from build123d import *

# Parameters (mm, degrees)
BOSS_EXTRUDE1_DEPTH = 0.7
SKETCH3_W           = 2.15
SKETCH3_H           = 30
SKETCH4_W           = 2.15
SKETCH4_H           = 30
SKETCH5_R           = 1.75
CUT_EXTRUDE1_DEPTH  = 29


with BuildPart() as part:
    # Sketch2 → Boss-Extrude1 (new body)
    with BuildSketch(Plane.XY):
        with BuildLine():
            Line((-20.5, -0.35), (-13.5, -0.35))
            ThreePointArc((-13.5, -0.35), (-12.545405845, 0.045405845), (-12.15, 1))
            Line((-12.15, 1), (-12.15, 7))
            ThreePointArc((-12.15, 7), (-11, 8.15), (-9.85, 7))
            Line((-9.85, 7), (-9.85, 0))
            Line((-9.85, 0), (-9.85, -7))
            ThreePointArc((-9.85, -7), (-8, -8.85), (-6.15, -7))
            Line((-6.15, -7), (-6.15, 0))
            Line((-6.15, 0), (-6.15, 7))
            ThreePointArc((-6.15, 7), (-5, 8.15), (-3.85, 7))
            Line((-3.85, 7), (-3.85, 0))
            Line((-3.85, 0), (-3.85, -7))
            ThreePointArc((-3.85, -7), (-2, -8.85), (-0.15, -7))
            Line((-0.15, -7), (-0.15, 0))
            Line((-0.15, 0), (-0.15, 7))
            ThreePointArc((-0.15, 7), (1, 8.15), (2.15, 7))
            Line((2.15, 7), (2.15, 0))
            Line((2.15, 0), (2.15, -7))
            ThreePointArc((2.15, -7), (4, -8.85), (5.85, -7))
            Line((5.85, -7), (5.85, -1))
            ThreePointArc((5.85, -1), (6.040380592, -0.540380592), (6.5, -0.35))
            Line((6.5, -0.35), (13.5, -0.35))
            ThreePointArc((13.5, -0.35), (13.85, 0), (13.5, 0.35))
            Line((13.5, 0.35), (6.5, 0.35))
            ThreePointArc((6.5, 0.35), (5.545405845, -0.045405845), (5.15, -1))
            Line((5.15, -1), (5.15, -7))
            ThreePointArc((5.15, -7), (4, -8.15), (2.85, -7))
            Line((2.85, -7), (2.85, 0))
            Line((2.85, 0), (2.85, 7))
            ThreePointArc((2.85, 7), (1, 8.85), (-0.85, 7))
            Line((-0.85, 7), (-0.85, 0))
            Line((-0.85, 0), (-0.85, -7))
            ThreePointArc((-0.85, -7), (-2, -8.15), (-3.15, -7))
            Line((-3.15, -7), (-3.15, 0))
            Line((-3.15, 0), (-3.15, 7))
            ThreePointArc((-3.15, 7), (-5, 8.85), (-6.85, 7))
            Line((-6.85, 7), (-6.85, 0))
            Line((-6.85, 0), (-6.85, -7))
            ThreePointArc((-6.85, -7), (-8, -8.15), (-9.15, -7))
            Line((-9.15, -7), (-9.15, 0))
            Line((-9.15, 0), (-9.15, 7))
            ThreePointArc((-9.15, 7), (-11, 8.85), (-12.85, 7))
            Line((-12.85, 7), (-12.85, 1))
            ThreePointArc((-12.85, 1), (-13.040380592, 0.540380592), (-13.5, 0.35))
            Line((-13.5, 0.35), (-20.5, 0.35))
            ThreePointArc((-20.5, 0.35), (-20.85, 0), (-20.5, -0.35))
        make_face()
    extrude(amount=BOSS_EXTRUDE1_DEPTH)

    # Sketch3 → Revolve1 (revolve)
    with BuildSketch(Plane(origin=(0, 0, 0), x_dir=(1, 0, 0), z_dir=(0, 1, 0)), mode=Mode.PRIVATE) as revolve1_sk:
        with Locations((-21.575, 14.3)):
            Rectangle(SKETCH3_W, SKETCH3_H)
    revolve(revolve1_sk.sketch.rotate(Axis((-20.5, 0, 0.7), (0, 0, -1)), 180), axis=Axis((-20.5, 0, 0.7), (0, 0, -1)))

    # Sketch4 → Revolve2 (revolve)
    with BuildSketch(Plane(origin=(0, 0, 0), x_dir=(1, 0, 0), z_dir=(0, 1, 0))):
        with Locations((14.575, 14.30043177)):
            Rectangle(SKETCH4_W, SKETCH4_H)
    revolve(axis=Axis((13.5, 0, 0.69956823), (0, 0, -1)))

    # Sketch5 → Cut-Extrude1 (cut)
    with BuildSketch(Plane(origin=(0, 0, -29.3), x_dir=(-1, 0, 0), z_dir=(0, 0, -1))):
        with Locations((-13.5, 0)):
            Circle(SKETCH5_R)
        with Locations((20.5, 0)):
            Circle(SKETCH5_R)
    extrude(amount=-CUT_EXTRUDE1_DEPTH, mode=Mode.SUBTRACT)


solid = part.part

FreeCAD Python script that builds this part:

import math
import FreeCAD as App
import Part
import Sketcher
from FreeCAD import Vector
Q = App.Units.Quantity

doc = App.newDocument("Part")
body = doc.addObject("PartDesign::Body", "Body")

sketch1 = body.newObject("Sketcher::SketchObject", "Sketch")
sketch1.AttachmentSupport = (doc.getObject("XY_Plane"), [""])
sketch1.MapMode = "FlatFace"
sketch1.addGeometry(Part.LineSegment(Vector(-20.5, -0.35, 0), Vector(-13.5, -0.35, 0)), False)
sketch1.addGeometry(Part.ArcOfCircle(Part.Circle(Vector(-13.5, 1, 0), Vector(0, 0, 1), 1.35), math.radians(-90), math.radians(0)), False)
sketch1.addGeometry(Part.LineSegment(Vector(-12.15, 1, 0), Vector(-12.15, 7, 0)), False)
sketch1.addGeometry(Part.ArcOfCircle(Part.Circle(Vector(-11, 7, 0), Vector(0, 0, 1), 1.15), math.radians(0), math.radians(180)), False)
sketch1.addGeometry(Part.LineSegment(Vector(-9.85, 7, 0), Vector(-9.85, -7, 0)), False)
sketch1.addGeometry(Part.ArcOfCircle(Part.Circle(Vector(-8, -7, 0), Vector(0, 0, 1), 1.85), math.radians(180), math.radians(360)), False)
sketch1.addGeometry(Part.LineSegment(Vector(-6.15, -7, 0), Vector(-6.15, 7, 0)), False)
sketch1.addGeometry(Part.ArcOfCircle(Part.Circle(Vector(-5, 7, 0), Vector(0, 0, 1), 1.15), math.radians(0), math.radians(180)), False)
sketch1.addGeometry(Part.LineSegment(Vector(-3.85, 7, 0), Vector(-3.85, -7, 0)), False)
sketch1.addGeometry(Part.ArcOfCircle(Part.Circle(Vector(-2, -7, 0), Vector(0, 0, 1), 1.85), math.radians(180), math.radians(360)), False)
sketch1.addGeometry(Part.LineSegment(Vector(-0.15, -7, 0), Vector(-0.15, 7, 0)), False)
sketch1.addGeometry(Part.ArcOfCircle(Part.Circle(Vector(1, 7, 0), Vector(0, 0, 1), 1.15), math.radians(0), math.radians(180)), False)
sketch1.addGeometry(Part.LineSegment(Vector(2.15, 7, 0), Vector(2.15, -7, 0)), False)
sketch1.addGeometry(Part.ArcOfCircle(Part.Circle(Vector(4, -7, 0), Vector(0, 0, 1), 1.85), math.radians(180), math.radians(360)), False)
sketch1.addGeometry(Part.LineSegment(Vector(5.85, -7, 0), Vector(5.85, -1, 0)), False)
sketch1.addGeometry(Part.ArcOfCircle(Part.Circle(Vector(6.5, -1, 0), Vector(0, 0, 1), 0.65), math.radians(90), math.radians(180)), False)
sketch1.addGeometry(Part.LineSegment(Vector(6.5, -0.35, 0), Vector(13.5, -0.35, 0)), False)
sketch1.addGeometry(Part.ArcOfCircle(Part.Circle(Vector(13.5, 0, 0), Vector(0, 0, 1), 0.35), math.radians(-90), math.radians(90)), False)
sketch1.addGeometry(Part.LineSegment(Vector(13.5, 0.35, 0), Vector(6.5, 0.35, 0)), False)
sketch1.addGeometry(Part.ArcOfCircle(Part.Circle(Vector(6.5, -1, 0), Vector(0, 0, 1), 1.35), math.radians(90), math.radians(180)), False)
sketch1.addGeometry(Part.LineSegment(Vector(5.15, -1, 0), Vector(5.15, -7, 0)), False)
sketch1.addGeometry(Part.ArcOfCircle(Part.Circle(Vector(4, -7, 0), Vector(0, 0, 1), 1.15), math.radians(180), math.radians(360)), False)
sketch1.addGeometry(Part.LineSegment(Vector(2.85, -7, 0), Vector(2.85, 7, 0)), False)
sketch1.addGeometry(Part.ArcOfCircle(Part.Circle(Vector(1, 7, 0), Vector(0, 0, 1), 1.85), math.radians(0), math.radians(180)), False)
sketch1.addGeometry(Part.LineSegment(Vector(-0.85, 7, 0), Vector(-0.85, -7, 0)), False)
sketch1.addGeometry(Part.ArcOfCircle(Part.Circle(Vector(-2, -7, 0), Vector(0, 0, 1), 1.15), math.radians(180), math.radians(360)), False)
sketch1.addGeometry(Part.LineSegment(Vector(-3.15, -7, 0), Vector(-3.15, 7, 0)), False)
sketch1.addGeometry(Part.ArcOfCircle(Part.Circle(Vector(-5, 7, 0), Vector(0, 0, 1), 1.85), math.radians(0), math.radians(180)), False)
sketch1.addGeometry(Part.LineSegment(Vector(-6.85, 7, 0), Vector(-6.85, -7, 0)), False)
sketch1.addGeometry(Part.ArcOfCircle(Part.Circle(Vector(-8, -7, 0), Vector(0, 0, 1), 1.15), math.radians(180), math.radians(360)), False)
sketch1.addGeometry(Part.LineSegment(Vector(-9.15, -7, 0), Vector(-9.15, 7, 0)), False)
sketch1.addGeometry(Part.ArcOfCircle(Part.Circle(Vector(-11, 7, 0), Vector(0, 0, 1), 1.85), math.radians(0), math.radians(180)), False)
sketch1.addGeometry(Part.LineSegment(Vector(-12.85, 7, 0), Vector(-12.85, 1, 0)), False)
sketch1.addGeometry(Part.ArcOfCircle(Part.Circle(Vector(-13.5, 1, 0), Vector(0, 0, 1), 0.65), math.radians(-90), math.radians(0)), False)
sketch1.addGeometry(Part.LineSegment(Vector(-13.5, 0.35, 0), Vector(-20.5, 0.35, 0)), False)
sketch1.addGeometry(Part.ArcOfCircle(Part.Circle(Vector(-20.5, 0, 0), Vector(0, 0, 1), 0.35), math.radians(90), math.radians(270)), False)
sketch1.addConstraint(Sketcher.Constraint("Tangent", 0, 2, 1, 1))
sketch1.addConstraint(Sketcher.Constraint("Tangent", 1, 2, 2, 1))
sketch1.addConstraint(Sketcher.Constraint("Tangent", 2, 2, 3, 2))
sketch1.addConstraint(Sketcher.Constraint("Tangent", 3, 1, 4, 1))
sketch1.addConstraint(Sketcher.Constraint("Tangent", 4, 2, 5, 1))
sketch1.addConstraint(Sketcher.Constraint("Tangent", 5, 2, 6, 1))
sketch1.addConstraint(Sketcher.Constraint("Tangent", 6, 2, 7, 2))
sketch1.addConstraint(Sketcher.Constraint("Tangent", 7, 1, 8, 1))
sketch1.addConstraint(Sketcher.Constraint("Tangent", 8, 2, 9, 1))
sketch1.addConstraint(Sketcher.Constraint("Tangent", 9, 2, 10, 1))
sketch1.addConstraint(Sketcher.Constraint("Tangent", 10, 2, 11, 2))
sketch1.addConstraint(Sketcher.Constraint("Tangent", 11, 1, 12, 1))
sketch1.addConstraint(Sketcher.Constraint("Tangent", 12, 2, 13, 1))
sketch1.addConstraint(Sketcher.Constraint("Tangent", 13, 2, 14, 1))
sketch1.addConstraint(Sketcher.Constraint("Tangent", 14, 2, 15, 2))
sketch1.addConstraint(Sketcher.Constraint("Tangent", 15, 1, 16, 1))
sketch1.addConstraint(Sketcher.Constraint("Tangent", 16, 2, 17, 1))
sketch1.addConstraint(Sketcher.Constraint("Tangent", 17, 2, 18, 1))
sketch1.addConstraint(Sketcher.Constraint("Tangent", 18, 2, 19, 1))
sketch1.addConstraint(Sketcher.Constraint("Tangent", 19, 2, 20, 1))
sketch1.addConstraint(Sketcher.Constraint("Tangent", 20, 2, 21, 2))
sketch1.addConstraint(Sketcher.Constraint("Tangent", 21, 1, 22, 1))
sketch1.addConstraint(Sketcher.Constraint("Tangent", 22, 2, 23, 1))
sketch1.addConstraint(Sketcher.Constraint("Tangent", 23, 2, 24, 1))
sketch1.addConstraint(Sketcher.Constraint("Tangent", 24, 2, 25, 2))
sketch1.addConstraint(Sketcher.Constraint("Tangent", 25, 1, 26, 1))
sketch1.addConstraint(Sketcher.Constraint("Tangent", 26, 2, 27, 1))
sketch1.addConstraint(Sketcher.Constraint("Tangent", 27, 2, 28, 1))
sketch1.addConstraint(Sketcher.Constraint("Tangent", 28, 2, 29, 2))
sketch1.addConstraint(Sketcher.Constraint("Tangent", 29, 1, 30, 1))
sketch1.addConstraint(Sketcher.Constraint("Tangent", 30, 2, 31, 1))
sketch1.addConstraint(Sketcher.Constraint("Tangent", 31, 2, 32, 1))
sketch1.addConstraint(Sketcher.Constraint("Tangent", 32, 2, 33, 2))
sketch1.addConstraint(Sketcher.Constraint("Tangent", 33, 1, 34, 1))
sketch1.addConstraint(Sketcher.Constraint("Tangent", 34, 2, 35, 1))
sketch1.addConstraint(Sketcher.Constraint("Tangent", 35, 2, 0, 1))
sketch1.addConstraint(Sketcher.Constraint("Horizontal", 0))
sketch1.addConstraint(Sketcher.Constraint("Vertical", 2))
sketch1.addConstraint(Sketcher.Constraint("Vertical", 4))
sketch1.addConstraint(Sketcher.Constraint("Vertical", 6))
sketch1.addConstraint(Sketcher.Constraint("Vertical", 8))
sketch1.addConstraint(Sketcher.Constraint("Vertical", 10))
sketch1.addConstraint(Sketcher.Constraint("Vertical", 12))
sketch1.addConstraint(Sketcher.Constraint("Vertical", 14))
sketch1.addConstraint(Sketcher.Constraint("Horizontal", 16))
sketch1.addConstraint(Sketcher.Constraint("Horizontal", 18))
sketch1.addConstraint(Sketcher.Constraint("Vertical", 20))
sketch1.addConstraint(Sketcher.Constraint("Vertical", 22))
sketch1.addConstraint(Sketcher.Constraint("Vertical", 24))
sketch1.addConstraint(Sketcher.Constraint("Vertical", 26))
sketch1.addConstraint(Sketcher.Constraint("Vertical", 28))
sketch1.addConstraint(Sketcher.Constraint("Vertical", 30))
sketch1.addConstraint(Sketcher.Constraint("Vertical", 32))
sketch1.addConstraint(Sketcher.Constraint("Horizontal", 34))
sketch1.addConstraint(Sketcher.Constraint("Coincident", 19, 3, 15, 3))
sketch1.addConstraint(Sketcher.Constraint("Coincident", 21, 3, 13, 3))
sketch1.addConstraint(Sketcher.Constraint("Coincident", 23, 3, 11, 3))
sketch1.addConstraint(Sketcher.Constraint("Coincident", 25, 3, 9, 3))
sketch1.addConstraint(Sketcher.Constraint("Coincident", 27, 3, 7, 3))
sketch1.addConstraint(Sketcher.Constraint("Coincident", 29, 3, 5, 3))
sketch1.addConstraint(Sketcher.Constraint("Coincident", 31, 3, 3, 3))
sketch1.addConstraint(Sketcher.Constraint("Coincident", 33, 3, 1, 3))
sketch1.addConstraint(Sketcher.Constraint("Equal", 3, 7))
sketch1.addConstraint(Sketcher.Constraint("Equal", 5, 9))
sketch1.addConstraint(Sketcher.Constraint("Equal", 7, 11))
sketch1.addConstraint(Sketcher.Constraint("Equal", 9, 13))
sketch1.addConstraint(Sketcher.Constraint("Equal", 1, 19))
sketch1.addConstraint(Sketcher.Constraint("Equal", 11, 21))
sketch1.addConstraint(Sketcher.Constraint("Symmetric", 0, 2, 17, 2, -1, 1))
sketch1.addConstraint(Sketcher.Constraint("PointOnObject", 17, 3, -1))
sketch1.addConstraint(Sketcher.Constraint("Horizontal", 3, 3, 7, 3))
sketch1.addConstraint(Sketcher.Constraint("Horizontal", 5, 3, 9, 3))
sketch1.addConstraint(Sketcher.Constraint("Horizontal", 7, 3, 11, 3))
sketch1.addConstraint(Sketcher.Constraint("Horizontal", 9, 3, 13, 3))
sketch1.addConstraint(Sketcher.Constraint("Equal", 0, 16))
sketch1.addConstraint(Sketcher.Constraint("Equal", 2, 14))
sketch1.addConstraint(Sketcher.Constraint("DistanceX", 0, 1, 0, 2, Q("7 mm")))
sketch1.addConstraint(Sketcher.Constraint("DistanceY", 2, 1, 2, 2, Q("6 mm")))
sketch1.addConstraint(Sketcher.Constraint("DistanceY", 4, 2, 4, 1, Q("14 mm")))
sketch1.addConstraint(Sketcher.Constraint("Radius", 1, Q("1.35 mm")))
sketch1.addConstraint(Sketcher.Constraint("Radius", 3, Q("1.15 mm")))
pad1 = body.newObject("PartDesign::Pad", "Pad")
pad1.Profile = sketch1
pad1.Length = 0.7

sketch2 = body.newObject("Sketcher::SketchObject", "Sketch001")
sketch2.AttachmentSupport = (doc.getObject("XZ_Plane"), [""])
sketch2.MapMode = "FlatFace"
sketch2.addGeometry(Part.LineSegment(Vector(-22.6, -29.3, 0), Vector(-22.6, 0.7, 0)), False)
sketch2.addGeometry(Part.LineSegment(Vector(-22.6, 0.7, 0), Vector(-20.5, 0.7, 0)), False)
sketch2.addGeometry(Part.LineSegment(Vector(-20.5, 0.7, 0), Vector(-20.5, -29.3, 0)), False)
sketch2.addGeometry(Part.LineSegment(Vector(-20.5, -29.3, 0), Vector(-22.6, -29.3, 0)), False)
sketch2.addGeometry(Part.LineSegment(Vector(-20.5, 0.7, 0), Vector(-20.5, -29.3, 0)), True)
sketch2.addConstraint(Sketcher.Constraint("Coincident", 0, 2, 1, 1))
sketch2.addConstraint(Sketcher.Constraint("Coincident", 1, 2, 2, 1))
sketch2.addConstraint(Sketcher.Constraint("Coincident", 2, 2, 3, 1))
sketch2.addConstraint(Sketcher.Constraint("Coincident", 3, 2, 0, 1))
sketch2.addConstraint(Sketcher.Constraint("Vertical", 0))
sketch2.addConstraint(Sketcher.Constraint("Horizontal", 1))
sketch2.addConstraint(Sketcher.Constraint("Vertical", 2))
sketch2.addConstraint(Sketcher.Constraint("Horizontal", 3))
sketch2.addConstraint(Sketcher.Constraint("Vertical", 4))
sketch2.addConstraint(Sketcher.Constraint("Coincident", 4, 1, 1, 2))
sketch2.addConstraint(Sketcher.Constraint("Horizontal", 3, 2, 4, 2))
sketch2.addConstraint(Sketcher.Constraint("DistanceY", 0, 1, 0, 2, Q("30 mm")))
sketch2.addConstraint(Sketcher.Constraint("DistanceX", 1, 1, 1, 2, Q("2.15 mm")))
sketch2.addConstraint(Sketcher.Constraint("DistanceY", -1, 1, 0, 2, Q("0.7 mm")))
sketch2.addConstraint(Sketcher.Constraint("DistanceX", 1, 2, -1, 1, Q("20.5 mm")))
revolution = body.newObject("PartDesign::Revolution", "Revolution")
revolution.Profile = sketch2
revolution.ReferenceAxis = (sketch2, ["Axis0"])
revolution.Angle = 360

sketch3 = body.newObject("Sketcher::SketchObject", "Sketch002")
sketch3.AttachmentSupport = (doc.getObject("XZ_Plane"), [""])
sketch3.MapMode = "FlatFace"
sketch3.addGeometry(Part.LineSegment(Vector(13.5, -29.3, 0), Vector(13.5, 0.7, 0)), False)
sketch3.addGeometry(Part.LineSegment(Vector(13.5, 0.7, 0), Vector(15.7, 0.7, 0)), False)
sketch3.addGeometry(Part.LineSegment(Vector(15.7, 0.7, 0), Vector(15.7, -29.3, 0)), False)
sketch3.addGeometry(Part.LineSegment(Vector(15.7, -29.3, 0), Vector(13.5, -29.3, 0)), False)
sketch3.addGeometry(Part.LineSegment(Vector(13.5, 0.7, 0), Vector(13.5, -29.3, 0)), True)
sketch3.addConstraint(Sketcher.Constraint("Coincident", 0, 2, 1, 1))
sketch3.addConstraint(Sketcher.Constraint("Coincident", 1, 2, 2, 1))
sketch3.addConstraint(Sketcher.Constraint("Coincident", 2, 2, 3, 1))
sketch3.addConstraint(Sketcher.Constraint("Coincident", 3, 2, 0, 1))
sketch3.addConstraint(Sketcher.Constraint("Vertical", 0))
sketch3.addConstraint(Sketcher.Constraint("Horizontal", 1))
sketch3.addConstraint(Sketcher.Constraint("Vertical", 2))
sketch3.addConstraint(Sketcher.Constraint("Horizontal", 3))
sketch3.addConstraint(Sketcher.Constraint("Vertical", 4))
sketch3.addConstraint(Sketcher.Constraint("Coincident", 4, 1, 0, 2))
sketch3.addConstraint(Sketcher.Constraint("Horizontal", 2, 2, 4, 2))
sketch3.addConstraint(Sketcher.Constraint("DistanceY", 0, 1, 0, 2, Q("30 mm")))
sketch3.addConstraint(Sketcher.Constraint("DistanceX", 1, 1, 1, 2, Q("2.15 mm")))
sketch3.addConstraint(Sketcher.Constraint("DistanceX", -1, 1, 0, 2, Q("13.5 mm")))
sketch3.addConstraint(Sketcher.Constraint("DistanceY", -1, 1, 0, 2, Q("0.699568 mm")))
revolution2 = body.newObject("PartDesign::Revolution", "Revolution001")
revolution2.Profile = sketch3
revolution2.ReferenceAxis = (sketch3, ["Axis0"])
revolution2.Angle = 360

sketch4 = body.newObject("Sketcher::SketchObject", "Sketch003")
sketch4.AttachmentSupport = (doc.getObject("XY_Plane"), [""])
sketch4.MapMode = "FlatFace"
sketch4.AttachmentOffset = App.Placement(Vector(0, 0, -29.3), App.Rotation())
sketch4.addGeometry(Part.Circle(Vector(13.5, 0, 0), Vector(0, 0, 1), 1.8), False)
sketch4.addGeometry(Part.Circle(Vector(-20.5, 0, 0), Vector(0, 0, 1), 1.8), False)
sketch4.addConstraint(Sketcher.Constraint("Equal", 0, 1))
sketch4.addConstraint(Sketcher.Constraint("PointOnObject", 0, 3, -1))
sketch4.addConstraint(Sketcher.Constraint("PointOnObject", 1, 3, -1))
sketch4.addConstraint(Sketcher.Constraint("Diameter", 0, Q("3.5 mm")))
sketch4.addConstraint(Sketcher.Constraint("DistanceX", 1, 3, 0, 3, Q("34 mm")))
sketch4.addConstraint(Sketcher.Constraint("DistanceX", -1, 1, 0, 3, Q("13.5 mm")))
pocket1 = body.newObject("PartDesign::Pocket", "Pocket")
pocket1.Profile = sketch4
pocket1.Length = 29
pocket1.Reversed = True

doc.recompute()
